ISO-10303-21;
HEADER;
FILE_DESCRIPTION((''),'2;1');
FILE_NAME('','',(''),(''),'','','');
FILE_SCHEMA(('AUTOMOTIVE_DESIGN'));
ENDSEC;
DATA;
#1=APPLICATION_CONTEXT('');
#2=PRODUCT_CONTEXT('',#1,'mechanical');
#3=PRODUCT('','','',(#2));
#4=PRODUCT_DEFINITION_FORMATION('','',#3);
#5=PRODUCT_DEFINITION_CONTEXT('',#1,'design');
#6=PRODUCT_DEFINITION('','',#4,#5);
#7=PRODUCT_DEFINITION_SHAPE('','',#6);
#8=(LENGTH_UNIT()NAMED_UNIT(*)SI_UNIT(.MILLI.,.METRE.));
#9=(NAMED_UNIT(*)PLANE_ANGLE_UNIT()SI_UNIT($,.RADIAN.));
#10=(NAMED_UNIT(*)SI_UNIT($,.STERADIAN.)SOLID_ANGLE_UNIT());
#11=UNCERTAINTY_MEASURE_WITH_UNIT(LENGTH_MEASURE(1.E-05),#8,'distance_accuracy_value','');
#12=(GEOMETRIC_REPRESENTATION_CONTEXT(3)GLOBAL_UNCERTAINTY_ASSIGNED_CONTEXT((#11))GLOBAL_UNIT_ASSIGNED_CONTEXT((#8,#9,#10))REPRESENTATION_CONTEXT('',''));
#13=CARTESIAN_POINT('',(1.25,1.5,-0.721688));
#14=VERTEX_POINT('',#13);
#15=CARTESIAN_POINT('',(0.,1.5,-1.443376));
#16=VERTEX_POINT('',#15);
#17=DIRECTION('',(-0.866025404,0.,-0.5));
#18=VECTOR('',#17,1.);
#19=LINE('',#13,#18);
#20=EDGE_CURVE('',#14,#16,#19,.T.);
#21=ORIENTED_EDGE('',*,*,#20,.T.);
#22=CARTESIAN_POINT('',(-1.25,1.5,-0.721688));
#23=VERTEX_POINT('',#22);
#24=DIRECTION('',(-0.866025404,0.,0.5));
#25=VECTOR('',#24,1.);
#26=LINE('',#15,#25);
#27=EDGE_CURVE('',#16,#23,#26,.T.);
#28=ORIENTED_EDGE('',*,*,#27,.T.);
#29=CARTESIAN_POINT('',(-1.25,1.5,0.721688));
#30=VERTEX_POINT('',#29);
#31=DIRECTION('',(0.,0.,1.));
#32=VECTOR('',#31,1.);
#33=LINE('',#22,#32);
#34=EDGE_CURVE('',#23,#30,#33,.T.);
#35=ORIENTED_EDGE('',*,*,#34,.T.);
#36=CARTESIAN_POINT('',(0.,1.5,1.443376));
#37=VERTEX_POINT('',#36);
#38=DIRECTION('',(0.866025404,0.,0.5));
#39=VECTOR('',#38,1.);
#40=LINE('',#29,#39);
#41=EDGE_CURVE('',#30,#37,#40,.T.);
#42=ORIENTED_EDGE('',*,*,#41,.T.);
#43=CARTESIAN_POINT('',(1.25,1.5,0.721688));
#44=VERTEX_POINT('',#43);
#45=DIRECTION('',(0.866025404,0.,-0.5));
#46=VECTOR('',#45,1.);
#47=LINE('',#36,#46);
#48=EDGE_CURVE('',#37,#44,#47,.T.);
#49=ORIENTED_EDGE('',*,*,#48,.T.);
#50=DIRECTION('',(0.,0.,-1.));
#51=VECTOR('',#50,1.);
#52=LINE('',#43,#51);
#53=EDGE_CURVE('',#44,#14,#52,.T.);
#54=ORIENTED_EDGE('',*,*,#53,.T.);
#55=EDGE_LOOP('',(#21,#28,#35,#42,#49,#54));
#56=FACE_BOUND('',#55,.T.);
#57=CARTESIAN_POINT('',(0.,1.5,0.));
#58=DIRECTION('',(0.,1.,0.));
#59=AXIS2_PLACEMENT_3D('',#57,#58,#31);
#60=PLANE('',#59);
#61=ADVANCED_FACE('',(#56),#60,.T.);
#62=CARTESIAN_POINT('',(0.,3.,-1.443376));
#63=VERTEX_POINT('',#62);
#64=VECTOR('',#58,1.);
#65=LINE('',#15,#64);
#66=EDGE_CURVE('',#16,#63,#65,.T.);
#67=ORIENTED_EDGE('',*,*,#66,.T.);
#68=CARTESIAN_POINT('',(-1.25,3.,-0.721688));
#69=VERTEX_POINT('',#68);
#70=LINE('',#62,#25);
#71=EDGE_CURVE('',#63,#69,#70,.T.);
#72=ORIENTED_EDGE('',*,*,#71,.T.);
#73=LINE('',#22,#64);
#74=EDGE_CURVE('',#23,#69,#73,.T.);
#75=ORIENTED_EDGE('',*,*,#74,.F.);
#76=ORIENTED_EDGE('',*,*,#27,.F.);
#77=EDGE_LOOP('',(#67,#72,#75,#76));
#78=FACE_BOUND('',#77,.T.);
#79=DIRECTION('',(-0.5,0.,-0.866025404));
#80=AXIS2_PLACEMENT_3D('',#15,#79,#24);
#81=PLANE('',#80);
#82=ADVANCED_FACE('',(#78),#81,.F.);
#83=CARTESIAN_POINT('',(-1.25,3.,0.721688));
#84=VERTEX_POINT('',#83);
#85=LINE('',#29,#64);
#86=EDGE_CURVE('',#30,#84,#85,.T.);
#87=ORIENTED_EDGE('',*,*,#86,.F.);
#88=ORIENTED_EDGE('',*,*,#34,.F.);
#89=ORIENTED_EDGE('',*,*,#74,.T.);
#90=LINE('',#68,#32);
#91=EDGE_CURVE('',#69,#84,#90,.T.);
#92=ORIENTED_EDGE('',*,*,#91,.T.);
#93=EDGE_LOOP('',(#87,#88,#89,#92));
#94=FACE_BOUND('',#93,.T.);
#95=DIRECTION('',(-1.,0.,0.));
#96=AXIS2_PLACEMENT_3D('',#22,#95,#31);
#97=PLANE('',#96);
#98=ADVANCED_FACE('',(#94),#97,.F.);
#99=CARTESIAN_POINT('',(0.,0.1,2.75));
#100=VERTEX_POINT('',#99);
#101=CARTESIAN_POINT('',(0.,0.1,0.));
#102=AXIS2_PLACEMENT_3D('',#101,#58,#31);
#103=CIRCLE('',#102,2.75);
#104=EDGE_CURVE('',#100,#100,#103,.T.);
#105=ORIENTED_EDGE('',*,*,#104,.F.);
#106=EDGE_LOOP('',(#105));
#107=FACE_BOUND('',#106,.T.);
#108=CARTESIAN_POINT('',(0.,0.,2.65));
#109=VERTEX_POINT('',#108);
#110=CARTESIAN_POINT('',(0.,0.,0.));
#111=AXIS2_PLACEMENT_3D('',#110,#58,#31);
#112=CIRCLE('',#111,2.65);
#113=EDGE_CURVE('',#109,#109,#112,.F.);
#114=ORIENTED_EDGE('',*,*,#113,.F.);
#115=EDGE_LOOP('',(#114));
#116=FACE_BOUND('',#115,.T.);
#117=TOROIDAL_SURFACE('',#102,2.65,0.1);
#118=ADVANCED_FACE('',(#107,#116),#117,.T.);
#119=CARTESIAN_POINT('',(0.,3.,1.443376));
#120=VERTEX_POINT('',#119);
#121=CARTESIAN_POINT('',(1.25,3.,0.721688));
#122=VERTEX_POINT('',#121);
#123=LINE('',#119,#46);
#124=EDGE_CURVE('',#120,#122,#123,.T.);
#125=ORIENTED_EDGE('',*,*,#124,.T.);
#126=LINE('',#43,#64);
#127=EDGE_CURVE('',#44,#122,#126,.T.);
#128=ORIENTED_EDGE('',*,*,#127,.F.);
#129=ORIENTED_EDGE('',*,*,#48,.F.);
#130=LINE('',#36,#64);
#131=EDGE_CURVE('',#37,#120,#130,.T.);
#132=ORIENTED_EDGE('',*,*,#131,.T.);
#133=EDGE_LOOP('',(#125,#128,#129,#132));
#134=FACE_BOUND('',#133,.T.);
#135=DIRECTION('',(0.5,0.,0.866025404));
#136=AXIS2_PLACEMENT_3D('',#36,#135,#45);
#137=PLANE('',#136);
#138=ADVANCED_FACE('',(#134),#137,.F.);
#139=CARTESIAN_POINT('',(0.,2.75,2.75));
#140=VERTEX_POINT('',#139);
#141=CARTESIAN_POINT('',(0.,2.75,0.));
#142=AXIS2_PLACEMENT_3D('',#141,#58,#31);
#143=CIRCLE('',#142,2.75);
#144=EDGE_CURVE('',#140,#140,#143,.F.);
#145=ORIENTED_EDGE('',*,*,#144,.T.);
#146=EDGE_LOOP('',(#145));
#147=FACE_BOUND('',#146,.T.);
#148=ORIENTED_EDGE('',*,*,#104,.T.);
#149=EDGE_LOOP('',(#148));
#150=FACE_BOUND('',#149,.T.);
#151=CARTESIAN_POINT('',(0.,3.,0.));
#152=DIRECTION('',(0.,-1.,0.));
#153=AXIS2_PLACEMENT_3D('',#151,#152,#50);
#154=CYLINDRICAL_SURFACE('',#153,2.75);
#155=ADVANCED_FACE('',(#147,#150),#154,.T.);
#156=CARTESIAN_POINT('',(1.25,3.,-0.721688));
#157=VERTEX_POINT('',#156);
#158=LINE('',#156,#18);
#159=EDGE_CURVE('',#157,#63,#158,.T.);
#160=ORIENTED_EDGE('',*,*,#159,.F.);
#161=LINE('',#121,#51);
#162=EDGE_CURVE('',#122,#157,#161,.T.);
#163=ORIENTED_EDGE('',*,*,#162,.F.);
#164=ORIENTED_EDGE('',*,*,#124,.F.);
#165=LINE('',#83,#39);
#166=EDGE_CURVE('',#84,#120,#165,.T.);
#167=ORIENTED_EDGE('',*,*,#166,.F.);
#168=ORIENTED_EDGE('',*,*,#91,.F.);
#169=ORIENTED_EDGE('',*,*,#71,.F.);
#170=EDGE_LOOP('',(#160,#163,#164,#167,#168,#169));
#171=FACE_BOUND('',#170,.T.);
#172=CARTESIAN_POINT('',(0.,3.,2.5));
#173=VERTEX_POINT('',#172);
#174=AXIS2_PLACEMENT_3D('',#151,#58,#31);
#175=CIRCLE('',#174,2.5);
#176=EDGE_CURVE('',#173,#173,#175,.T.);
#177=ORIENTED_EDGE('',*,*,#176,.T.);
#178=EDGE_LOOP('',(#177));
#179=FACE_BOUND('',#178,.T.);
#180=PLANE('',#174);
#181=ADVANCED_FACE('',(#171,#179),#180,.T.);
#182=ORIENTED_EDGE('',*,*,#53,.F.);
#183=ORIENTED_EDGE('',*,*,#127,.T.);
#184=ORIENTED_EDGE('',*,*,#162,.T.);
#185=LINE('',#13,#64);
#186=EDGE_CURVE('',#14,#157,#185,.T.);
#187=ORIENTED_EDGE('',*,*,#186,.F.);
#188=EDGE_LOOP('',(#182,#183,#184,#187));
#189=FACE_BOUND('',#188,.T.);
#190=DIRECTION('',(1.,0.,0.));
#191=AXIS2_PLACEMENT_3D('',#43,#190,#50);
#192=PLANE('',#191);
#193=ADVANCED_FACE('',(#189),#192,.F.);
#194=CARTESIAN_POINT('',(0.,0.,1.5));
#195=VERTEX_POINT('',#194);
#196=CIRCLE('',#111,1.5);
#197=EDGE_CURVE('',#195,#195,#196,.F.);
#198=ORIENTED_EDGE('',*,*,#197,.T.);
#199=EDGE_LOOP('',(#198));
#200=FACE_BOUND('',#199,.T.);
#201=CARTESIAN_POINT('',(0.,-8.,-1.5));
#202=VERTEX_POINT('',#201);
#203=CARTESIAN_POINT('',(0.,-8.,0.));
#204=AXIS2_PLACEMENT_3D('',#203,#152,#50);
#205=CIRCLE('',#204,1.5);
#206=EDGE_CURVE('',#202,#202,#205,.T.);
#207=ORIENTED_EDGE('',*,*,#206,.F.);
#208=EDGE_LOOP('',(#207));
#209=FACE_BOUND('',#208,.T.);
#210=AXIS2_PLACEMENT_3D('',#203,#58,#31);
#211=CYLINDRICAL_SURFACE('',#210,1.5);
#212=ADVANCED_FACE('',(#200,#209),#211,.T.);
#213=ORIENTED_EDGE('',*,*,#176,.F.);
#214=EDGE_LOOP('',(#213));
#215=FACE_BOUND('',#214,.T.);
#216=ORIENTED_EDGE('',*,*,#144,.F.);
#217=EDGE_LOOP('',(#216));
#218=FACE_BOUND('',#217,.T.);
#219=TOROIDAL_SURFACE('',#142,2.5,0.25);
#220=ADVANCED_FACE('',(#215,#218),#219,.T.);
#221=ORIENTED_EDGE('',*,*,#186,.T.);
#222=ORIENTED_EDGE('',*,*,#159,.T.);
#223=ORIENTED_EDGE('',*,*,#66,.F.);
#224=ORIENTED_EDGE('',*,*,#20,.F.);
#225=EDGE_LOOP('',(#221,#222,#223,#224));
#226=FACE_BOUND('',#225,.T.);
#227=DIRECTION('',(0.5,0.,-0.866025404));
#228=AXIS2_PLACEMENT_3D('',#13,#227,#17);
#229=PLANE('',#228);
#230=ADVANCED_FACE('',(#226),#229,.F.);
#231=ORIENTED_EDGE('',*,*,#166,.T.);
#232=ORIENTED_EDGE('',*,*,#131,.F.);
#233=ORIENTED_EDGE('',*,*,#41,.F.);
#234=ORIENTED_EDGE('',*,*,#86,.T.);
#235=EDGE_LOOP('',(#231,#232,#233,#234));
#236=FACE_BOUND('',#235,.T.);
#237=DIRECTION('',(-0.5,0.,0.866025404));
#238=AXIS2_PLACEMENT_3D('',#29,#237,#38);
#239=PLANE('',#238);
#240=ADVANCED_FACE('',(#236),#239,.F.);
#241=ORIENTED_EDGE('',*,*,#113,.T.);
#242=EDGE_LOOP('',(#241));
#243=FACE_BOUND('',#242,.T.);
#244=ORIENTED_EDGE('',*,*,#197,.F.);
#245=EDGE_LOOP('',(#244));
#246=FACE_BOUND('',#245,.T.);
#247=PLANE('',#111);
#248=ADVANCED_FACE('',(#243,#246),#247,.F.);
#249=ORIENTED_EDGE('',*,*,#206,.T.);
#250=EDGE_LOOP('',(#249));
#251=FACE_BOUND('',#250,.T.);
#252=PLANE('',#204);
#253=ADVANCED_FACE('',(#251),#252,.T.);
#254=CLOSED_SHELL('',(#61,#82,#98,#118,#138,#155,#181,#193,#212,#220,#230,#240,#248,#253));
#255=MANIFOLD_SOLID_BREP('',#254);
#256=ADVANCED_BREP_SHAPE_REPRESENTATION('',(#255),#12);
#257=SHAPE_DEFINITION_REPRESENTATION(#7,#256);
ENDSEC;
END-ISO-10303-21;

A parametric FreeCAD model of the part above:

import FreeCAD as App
import Part
import Sketcher

V = App.Vector
Q = App.Units.Quantity


def edges_at(feature, points):
    """Names of the edges that pass closest to the given points."""
    edges = feature.Shape.Edges
    near = lambda p: min(range(len(edges)), key=lambda i: edges[i].distToShape(Part.Vertex(*p))[0])
    return sorted({f"Edge{near(p) + 1}" for p in points})

doc = App.newDocument("Part")
params = doc.addObject("Spreadsheet::Sheet", "Params")
for row, (alias, value) in enumerate([
    ("sketch1_diameter", "5.5 mm"),
    ("pad1_length", "3 mm"),
    ("pocket1_length", "1.5 mm"),
    ("fillet_radius", "0.25 mm"),
    ("fillet2_radius", "0.1 mm"),
    ("sketch3_diameter", "3 mm"),
    ("pad2_length", "8 mm"),
], start=1):
    params.set(f"A{row}", alias)
    params.set(f"B{row}", "=" + value)
    params.setAlias(f"B{row}", alias)

body = doc.addObject("PartDesign::Body", "Body")

# Sketch on XZ plane
sketch1 = body.newObject("Sketcher::SketchObject", "Sketch")
sketch1.AttachmentSupport = (doc.getObject("XZ_Plane"), [""])
sketch1.MapMode = "FlatFace"
sketch1.addGeometry(Part.Circle(V(0, 0, 0), V(0, 0, 1), 2.8), False)
sketch1.addConstraint(Sketcher.Constraint("Coincident", 0, 3, -1, 1))
sketch1.addConstraint(Sketcher.Constraint("Diameter", 0, 5.5))
sketch1.setExpression("Constraints[1]", "Params.sketch1_diameter")
pad1 = body.newObject("PartDesign::Pad", "Pad")
pad1.Profile = sketch1
pad1.setExpression("Length", "Params.pad1_length")
pad1.Reversed = True

# Sketch on XZ plane
sketch2 = body.newObject("Sketcher::SketchObject", "Sketch001")
sketch2.AttachmentSupport = (doc.getObject("XZ_Plane"), [""])
sketch2.MapMode = "FlatFace"
sketch2.AttachmentOffset = App.Placement(V(0, 0, -3), App.Rotation())
sketch2.addGeometry(Part.LineSegment(V(0, -1.4, 0), V(-1.2, -0.7, 0)), False)
sketch2.addGeometry(Part.LineSegment(V(-1.2, -0.7, 0), V(-1.2, 0.7, 0)), False)
sketch2.addGeometry(Part.LineSegment(V(-1.2, 0.7, 0), V(0, 1.4, 0)), False)
sketch2.addGeometry(Part.LineSegment(V(0, 1.4, 0), V(1.2, 0.7, 0)), False)
sketch2.addGeometry(Part.LineSegment(V(1.2, 0.7, 0), V(1.2, -0.7, 0)), False)
sketch2.addGeometry(Part.LineSegment(V(1.2, -0.7, 0), V(0, -1.4, 0)), False)
sketch2.addConstraint(Sketcher.Constraint("Coincident", 0, 2, 1, 1))
sketch2.addConstraint(Sketcher.Constraint("Coincident", 1, 2, 2, 1))
sketch2.addConstraint(Sketcher.Constraint("Coincident", 2, 2, 3, 1))
sketch2.addConstraint(Sketcher.Constraint("Coincident", 3, 2, 4, 1))
sketch2.addConstraint(Sketcher.Constraint("Coincident", 4, 2, 5, 1))
sketch2.addConstraint(Sketcher.Constraint("Coincident", 5, 2, 0, 1))
sketch2.addConstraint(Sketcher.Constraint("Vertical", 1))
sketch2.addConstraint(Sketcher.Constraint("Vertical", 4))
sketch2.addConstraint(Sketcher.Constraint("Symmetric", 0, 2, 3, 2, -1, 1))
sketch2.addConstraint(Sketcher.Constraint("Symmetric", 2, 2, 5, 2, -1, 1))
sketch2.addConstraint(Sketcher.Constraint("PointOnObject", 2, 2, -2))
sketch2.addConstraint(Sketcher.Constraint("Parallel", 2, 5))
sketch2.addConstraint(Sketcher.Constraint("Horizontal", 1, 2, 3, 2))
sketch2.addConstraint(Sketcher.Constraint("Angle", 0, Q("150 deg")))
sketch2.addConstraint(Sketcher.Constraint("DistanceX", 1, 2, 3, 2, 2.5))
sketch2.addConstraint(Sketcher.Constraint("DistanceY", 1, 1, 1, 2, 1.443376))
pocket1 = body.newObject("PartDesign::Pocket", "Pocket")
pocket1.Profile = sketch2
pocket1.setExpression("Length", "Params.pocket1_length")
pocket1.Reversed = True
doc.recompute()

fillet = body.newObject("PartDesign::Fillet", "Fillet")
fillet.Base = (pocket1, edges_at(pocket1, [(0, 3, -2.75)]))
fillet.setExpression("Radius", "Params.fillet_radius")
doc.recompute()

fillet2 = body.newObject("PartDesign::Fillet", "Fillet001")
fillet2.Base = (fillet, edges_at(fillet, [(0, 0, -2.75)]))
fillet2.setExpression("Radius", "Params.fillet2_radius")

# Sketch on XZ plane
sketch3 = body.newObject("Sketcher::SketchObject", "Sketch002")
sketch3.AttachmentSupport = (doc.getObject("XZ_Plane"), [""])
sketch3.MapMode = "FlatFace"
sketch3.addGeometry(Part.Circle(V(0, 0, 0), V(0, 0, 1), 1.5), False)
sketch3.addConstraint(Sketcher.Constraint("Coincident", 0, 3, -1, 1))
sketch3.addConstraint(Sketcher.Constraint("Diameter", 0, 3.0))
sketch3.setExpression("Constraints[1]", "Params.sketch3_diameter")
pad2 = body.newObject("PartDesign::Pad", "Pad001")
pad2.Profile = sketch3
pad2.setExpression("Length", "Params.pad2_length")

doc.recompute()
